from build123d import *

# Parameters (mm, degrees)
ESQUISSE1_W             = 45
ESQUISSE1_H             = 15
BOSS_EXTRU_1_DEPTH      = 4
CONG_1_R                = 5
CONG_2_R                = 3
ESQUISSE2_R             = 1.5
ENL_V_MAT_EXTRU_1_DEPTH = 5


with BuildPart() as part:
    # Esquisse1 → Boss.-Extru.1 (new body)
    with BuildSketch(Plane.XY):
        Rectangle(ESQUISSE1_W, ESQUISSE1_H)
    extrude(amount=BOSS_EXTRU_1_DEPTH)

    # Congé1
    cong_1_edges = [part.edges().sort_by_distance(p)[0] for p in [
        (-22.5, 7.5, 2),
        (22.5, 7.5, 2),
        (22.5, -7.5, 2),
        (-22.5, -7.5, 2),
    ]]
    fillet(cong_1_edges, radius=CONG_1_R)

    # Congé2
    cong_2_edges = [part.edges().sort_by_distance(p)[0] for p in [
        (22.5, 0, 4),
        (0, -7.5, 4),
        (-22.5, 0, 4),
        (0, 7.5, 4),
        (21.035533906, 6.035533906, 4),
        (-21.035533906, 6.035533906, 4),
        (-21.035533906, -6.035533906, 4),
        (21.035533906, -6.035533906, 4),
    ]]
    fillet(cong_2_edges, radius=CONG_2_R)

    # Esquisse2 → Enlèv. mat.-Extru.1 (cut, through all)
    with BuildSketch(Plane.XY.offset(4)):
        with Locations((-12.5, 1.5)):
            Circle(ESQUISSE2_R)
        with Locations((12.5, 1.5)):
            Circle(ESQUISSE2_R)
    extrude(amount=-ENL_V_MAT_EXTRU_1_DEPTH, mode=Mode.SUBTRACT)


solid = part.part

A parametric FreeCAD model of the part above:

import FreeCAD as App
import Part
import Sketcher
from FreeCAD import Vector


def edges_at(feature, points):
    """Names of the edges that pass closest to the given points."""
    edges = feature.Shape.Edges
    near = lambda p: min(range(len(edges)), key=lambda i: edges[i].distToShape(Part.Vertex(*p))[0])
    return sorted({f"Edge{near(p) + 1}" for p in points})


def add_polygon(sketch, points):
    """Adds a closed chain of lines whose ends are joined by coincident constraints."""
    first, n = sketch.GeometryCount, len(points)
    for a, b in zip(points, points[1:] + points[:1]):
        sketch.addGeometry(Part.LineSegment(App.Vector(*a, 0), App.Vector(*b, 0)), False)
    for i in range(n):
        sketch.addConstraint(Sketcher.Constraint("Coincident", first + i, 2, first + (i + 1) % n, 1))

doc = App.newDocument("Part")
params = doc.addObject("Spreadsheet::Sheet", "Params")
for row, (alias, value) in enumerate([
    ("sketch1_width", "45 mm"),
    ("sketch1_height", "15 mm"),
    ("pad1_length", "4 mm"),
    ("fillet_radius", "5 mm"),
    ("fillet2_radius", "3 mm"),
    ("sketch2_diameter", "3 mm"),
], start=1):
    params.set(f"A{row}", alias)
    params.set(f"B{row}", "=" + value)
    params.setAlias(f"B{row}", alias)

body = doc.addObject("PartDesign::Body", "Body")

# Sketch on XY plane
sketch1 = doc.addObject("Sketcher::SketchObject", "Sketch")
body.addObject(sketch1)
sketch1.AttachmentSupport = (doc.XY_Plane, [""])
sketch1.MapMode = "FlatFace"
add_polygon(sketch1, [(-22, 8), (-22, -8), (22, -8), (22, 8)])  # lines 0-3
sketch1.addConstraint([
    Sketcher.Constraint("Vertical", 0),
    Sketcher.Constraint("Horizontal", 1),
    Sketcher.Constraint("Vertical", 2),
    Sketcher.Constraint("Horizontal", 3),
    Sketcher.Constraint("Symmetric", 0, 2, 2, 2, -1, 1),
    Sketcher.Constraint("DistanceX", 1, 1, 1, 2, 45.0),
    Sketcher.Constraint("DistanceY", 0, 2, 0, 1, 15.0),
])
sketch1.setExpression("Constraints[9]", "Params.sketch1_width")
sketch1.setExpression("Constraints[10]", "Params.sketch1_height")
pad1 = doc.addObject("PartDesign::Pad", "Pad")
body.addObject(pad1)
pad1.Profile = sketch1
pad1.setExpression("Length", "Params.pad1_length")
doc.recompute()

fillet = doc.addObject("PartDesign::Fillet", "Fillet")
body.addObject(fillet)
fillet.Base = (pad1, edges_at(pad1, [
    (-22.5, 7.5, 2),
    (22.5, 7.5, 2),
    (22.5, -7.5, 2),
    (-22.5, -7.5, 2),
]))
fillet.setExpression("Radius", "Params.fillet_radius")
doc.recompute()

fillet2 = doc.addObject("PartDesign::Fillet", "Fillet001")
body.addObject(fillet2)
fillet2.Base = (fillet, edges_at(fillet, [
    (22.5, 0, 4),
    (0, -7.5, 4),
    (-22.5, 0, 4),
    (0, 7.5, 4),
    (21.036, 6.036, 4),
    (-21.036, 6.036, 4),
    (-21.036, -6.036, 4),
    (21.036, -6.036, 4),
]))
fillet2.setExpression("Radius", "Params.fillet2_radius")

# Sketch on XY plane
sketch2 = doc.addObject("Sketcher::SketchObject", "Sketch001")
body.addObject(sketch2)
sketch2.AttachmentSupport = (doc.XY_Plane, [""])
sketch2.MapMode = "FlatFace"
sketch2.AttachmentOffset = App.Placement(Vector(0, 0, 4), App.Rotation())
sketch2.addGeometry([
    Part.Circle(Vector(-12.5, 1.5, 0), Vector(0, 0, 1), 1.5),
    Part.Circle(Vector(12.5, 1.5, 0), Vector(0, 0, 1), 1.5),
], False)
sketch2.addConstraint([
    Sketcher.Constraint("Equal", 0, 1),
    Sketcher.Constraint("Symmetric", 0, 3, 1, 3, -2),
    Sketcher.Constraint("Diameter", 0, 3.0),
    Sketcher.Constraint("DistanceX", 0, 3, 1, 3, 25.0),
    Sketcher.Constraint("DistanceY", -1, 1, 0, 3, 1.5),
])
sketch2.setExpression("Constraints[2]", "Params.sketch2_diameter")
pocket1 = doc.addObject("PartDesign::Pocket", "Pocket")
body.addObject(pocket1)
pocket1.Profile = sketch2
pocket1.Type = "ThroughAll"

doc.recompute()
